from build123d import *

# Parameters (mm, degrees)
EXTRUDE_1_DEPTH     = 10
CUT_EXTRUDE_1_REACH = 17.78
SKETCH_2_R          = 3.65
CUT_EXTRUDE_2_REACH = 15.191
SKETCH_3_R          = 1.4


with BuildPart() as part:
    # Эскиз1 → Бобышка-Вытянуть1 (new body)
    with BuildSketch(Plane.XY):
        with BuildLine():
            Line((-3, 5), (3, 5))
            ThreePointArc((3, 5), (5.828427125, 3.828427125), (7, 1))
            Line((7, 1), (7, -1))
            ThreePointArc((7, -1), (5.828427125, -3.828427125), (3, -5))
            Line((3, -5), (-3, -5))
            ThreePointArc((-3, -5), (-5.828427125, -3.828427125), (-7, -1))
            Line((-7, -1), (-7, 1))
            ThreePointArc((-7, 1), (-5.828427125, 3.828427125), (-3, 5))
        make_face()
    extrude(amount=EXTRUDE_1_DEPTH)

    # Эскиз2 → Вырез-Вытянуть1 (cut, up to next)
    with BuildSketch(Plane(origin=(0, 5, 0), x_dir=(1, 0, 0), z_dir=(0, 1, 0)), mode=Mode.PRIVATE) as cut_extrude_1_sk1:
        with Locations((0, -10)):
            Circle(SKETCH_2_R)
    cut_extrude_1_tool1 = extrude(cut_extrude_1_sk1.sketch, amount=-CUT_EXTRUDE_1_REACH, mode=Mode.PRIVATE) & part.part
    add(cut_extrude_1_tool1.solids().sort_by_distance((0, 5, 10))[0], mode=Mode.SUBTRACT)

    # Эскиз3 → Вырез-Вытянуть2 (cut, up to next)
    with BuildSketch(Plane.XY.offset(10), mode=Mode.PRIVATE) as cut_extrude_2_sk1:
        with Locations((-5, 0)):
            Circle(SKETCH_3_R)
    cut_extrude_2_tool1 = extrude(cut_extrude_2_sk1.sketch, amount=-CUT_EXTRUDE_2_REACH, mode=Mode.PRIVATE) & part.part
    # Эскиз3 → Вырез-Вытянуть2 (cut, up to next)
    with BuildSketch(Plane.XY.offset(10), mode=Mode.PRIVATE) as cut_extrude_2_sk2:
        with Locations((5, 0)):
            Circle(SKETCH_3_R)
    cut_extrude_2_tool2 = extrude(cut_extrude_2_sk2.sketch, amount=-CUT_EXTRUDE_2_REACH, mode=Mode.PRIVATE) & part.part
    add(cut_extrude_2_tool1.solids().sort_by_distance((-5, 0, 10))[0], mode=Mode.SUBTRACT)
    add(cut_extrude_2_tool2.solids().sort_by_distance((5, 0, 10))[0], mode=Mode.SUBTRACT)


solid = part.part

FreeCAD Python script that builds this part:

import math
import FreeCAD as App
import Part
import Sketcher
from FreeCAD import Vector
Q = App.Units.Quantity

doc = App.newDocument("Part")
params = doc.addObject("Spreadsheet::Sheet", "Params")
for row, (alias, value) in enumerate([
    ("sketch1_radius", "4 mm"),
    ("sketch1_width", "6 mm"),
    ("sketch1_height", "2 mm"),
    ("pad1_length", "10 mm"),
    ("sketch2_diameter", "7.3 mm"),
    ("sketch3_diameter", "2.8 mm"),
    ("sketch4_diameter", "2.8 mm"),
], start=1):
    params.set(f"A{row}", alias)
    params.set(f"B{row}", "=" + value)
    params.setAlias(f"B{row}", alias)

body = doc.addObject("PartDesign::Body", "Body")

# Sketch on XY plane
sketch1 = body.newObject("Sketcher::SketchObject", "Sketch")
sketch1.AttachmentSupport = (doc.getObject("XY_Plane"), [""])
sketch1.MapMode = "FlatFace"
sketch1.addGeometry([
    Part.LineSegment(Vector(3, 5, 0), Vector(-3, 5, 0)),  # 0
    Part.ArcOfCircle(Part.Circle(Vector(-3, 1, 0), Vector(0, 0, 1), 4), math.radians(90), math.radians(180)),  # 1
    Part.LineSegment(Vector(-7, 1, 0), Vector(-7, -1, 0)),  # 2
    Part.ArcOfCircle(Part.Circle(Vector(-3, -1, 0), Vector(0, 0, 1), 4), math.radians(180), math.radians(270)),  # 3
    Part.LineSegment(Vector(-3, -5, 0), Vector(3, -5, 0)),  # 4
    Part.ArcOfCircle(Part.Circle(Vector(3, -1, 0), Vector(0, 0, 1), 4), math.radians(-90), math.radians(0)),  # 5
    Part.LineSegment(Vector(7, -1, 0), Vector(7, 1, 0)),  # 6
    Part.ArcOfCircle(Part.Circle(Vector(3, 1, 0), Vector(0, 0, 1), 4), math.radians(0), math.radians(90)),  # 7
], False)
sketch1.addConstraint([
    Sketcher.Constraint("Tangent", 0, 2, 1, 1),
    Sketcher.Constraint("Tangent", 1, 2, 2, 1),
    Sketcher.Constraint("Tangent", 2, 2, 3, 1),
    Sketcher.Constraint("Tangent", 3, 2, 4, 1),
    Sketcher.Constraint("Tangent", 4, 2, 5, 1),
    Sketcher.Constraint("Tangent", 5, 2, 6, 1),
    Sketcher.Constraint("Tangent", 6, 2, 7, 1),
    Sketcher.Constraint("Tangent", 7, 2, 0, 1),
    Sketcher.Constraint("Horizontal", 0),
    Sketcher.Constraint("Vertical", 2),
    Sketcher.Constraint("Horizontal", 4),
    Sketcher.Constraint("Vertical", 6),
    Sketcher.Constraint("Equal", 1, 3),
    Sketcher.Constraint("Equal", 3, 5),
    Sketcher.Constraint("Equal", 5, 7),
    Sketcher.Constraint("Symmetric", 1, 3, 5, 3, -1, 1),
    Sketcher.Constraint("Radius", 1, Q("4 mm")),
    Sketcher.Constraint("DistanceX", 0, 2, 0, 1, Q("6 mm")),
    Sketcher.Constraint("DistanceY", 2, 2, 2, 1, Q("2 mm")),
])
sketch1.setExpression("Constraints[16]", "Params.sketch1_radius")
sketch1.setExpression("Constraints[17]", "Params.sketch1_width")
sketch1.setExpression("Constraints[18]", "Params.sketch1_height")
pad1 = body.newObject("PartDesign::Pad", "Pad")
pad1.Profile = sketch1
pad1.setExpression("Length", "Params.pad1_length")

# Sketch on XZ plane
sketch2 = body.newObject("Sketcher::SketchObject", "Sketch001")
sketch2.AttachmentSupport = (doc.getObject("XZ_Plane"), [""])
sketch2.MapMode = "FlatFace"
sketch2.AttachmentOffset = App.Placement(Vector(0, 0, -5), App.Rotation())
sketch2.addGeometry(Part.Circle(Vector(0, 10, 0), Vector(0, 0, 1), 3.6), False)
sketch2.addConstraint([
    Sketcher.Constraint("PointOnObject", 0, 3, -2),
    Sketcher.Constraint("Diameter", 0, Q("7.3 mm")),
    Sketcher.Constraint("DistanceY", -1, 1, 0, 3, Q("10 mm")),
])
sketch2.setExpression("Constraints[1]", "Params.sketch2_diameter")
pocket1 = body.newObject("PartDesign::Pocket", "Pocket")
pocket1.Profile = sketch2
pocket1.Type = "UpToFirst"
pocket1.Reversed = True

# Sketch on XY plane
sketch3 = body.newObject("Sketcher::SketchObject", "Sketch002")
sketch3.AttachmentSupport = (doc.getObject("XY_Plane"), [""])
sketch3.MapMode = "FlatFace"
sketch3.AttachmentOffset = App.Placement(Vector(0, 0, 10), App.Rotation())
sketch3.addGeometry(Part.Circle(Vector(-5, 0, 0), Vector(0, 0, 1), 1.4), False)
sketch3.addConstraint([
    Sketcher.Constraint("PointOnObject", 0, 3, -1),
    Sketcher.Constraint("Diameter", 0, Q("2.8 mm")),
    Sketcher.Constraint("DistanceX", 0, 3, -1, 1, Q("5 mm")),
])
sketch3.setExpression("Constraints[1]", "Params.sketch3_diameter")
pocket2 = body.newObject("PartDesign::Pocket", "Pocket001")
pocket2.Profile = sketch3
pocket2.Type = "UpToFirst"

# Sketch on XY plane
sketch4 = body.newObject("Sketcher::SketchObject", "Sketch003")
sketch4.AttachmentSupport = (doc.getObject("XY_Plane"), [""])
sketch4.MapMode = "FlatFace"
sketch4.AttachmentOffset = App.Placement(Vector(0, 0, 10), App.Rotation())
sketch4.addGeometry(Part.Circle(Vector(5, 0, 0), Vector(0, 0, 1), 1.4), False)
sketch4.addConstraint([
    Sketcher.Constraint("PointOnObject", 0, 3, -1),
    Sketcher.Constraint("Diameter", 0, Q("2.8 mm")),
    Sketcher.Constraint("DistanceX", -1, 1, 0, 3, Q("5 mm")),
])
sketch4.setExpression("Constraints[1]", "Params.sketch4_diameter")
pocket3 = body.newObject("PartDesign::Pocket", "Pocket002")
pocket3.Profile = sketch4
pocket3.Type = "UpToFirst"

doc.recompute()
